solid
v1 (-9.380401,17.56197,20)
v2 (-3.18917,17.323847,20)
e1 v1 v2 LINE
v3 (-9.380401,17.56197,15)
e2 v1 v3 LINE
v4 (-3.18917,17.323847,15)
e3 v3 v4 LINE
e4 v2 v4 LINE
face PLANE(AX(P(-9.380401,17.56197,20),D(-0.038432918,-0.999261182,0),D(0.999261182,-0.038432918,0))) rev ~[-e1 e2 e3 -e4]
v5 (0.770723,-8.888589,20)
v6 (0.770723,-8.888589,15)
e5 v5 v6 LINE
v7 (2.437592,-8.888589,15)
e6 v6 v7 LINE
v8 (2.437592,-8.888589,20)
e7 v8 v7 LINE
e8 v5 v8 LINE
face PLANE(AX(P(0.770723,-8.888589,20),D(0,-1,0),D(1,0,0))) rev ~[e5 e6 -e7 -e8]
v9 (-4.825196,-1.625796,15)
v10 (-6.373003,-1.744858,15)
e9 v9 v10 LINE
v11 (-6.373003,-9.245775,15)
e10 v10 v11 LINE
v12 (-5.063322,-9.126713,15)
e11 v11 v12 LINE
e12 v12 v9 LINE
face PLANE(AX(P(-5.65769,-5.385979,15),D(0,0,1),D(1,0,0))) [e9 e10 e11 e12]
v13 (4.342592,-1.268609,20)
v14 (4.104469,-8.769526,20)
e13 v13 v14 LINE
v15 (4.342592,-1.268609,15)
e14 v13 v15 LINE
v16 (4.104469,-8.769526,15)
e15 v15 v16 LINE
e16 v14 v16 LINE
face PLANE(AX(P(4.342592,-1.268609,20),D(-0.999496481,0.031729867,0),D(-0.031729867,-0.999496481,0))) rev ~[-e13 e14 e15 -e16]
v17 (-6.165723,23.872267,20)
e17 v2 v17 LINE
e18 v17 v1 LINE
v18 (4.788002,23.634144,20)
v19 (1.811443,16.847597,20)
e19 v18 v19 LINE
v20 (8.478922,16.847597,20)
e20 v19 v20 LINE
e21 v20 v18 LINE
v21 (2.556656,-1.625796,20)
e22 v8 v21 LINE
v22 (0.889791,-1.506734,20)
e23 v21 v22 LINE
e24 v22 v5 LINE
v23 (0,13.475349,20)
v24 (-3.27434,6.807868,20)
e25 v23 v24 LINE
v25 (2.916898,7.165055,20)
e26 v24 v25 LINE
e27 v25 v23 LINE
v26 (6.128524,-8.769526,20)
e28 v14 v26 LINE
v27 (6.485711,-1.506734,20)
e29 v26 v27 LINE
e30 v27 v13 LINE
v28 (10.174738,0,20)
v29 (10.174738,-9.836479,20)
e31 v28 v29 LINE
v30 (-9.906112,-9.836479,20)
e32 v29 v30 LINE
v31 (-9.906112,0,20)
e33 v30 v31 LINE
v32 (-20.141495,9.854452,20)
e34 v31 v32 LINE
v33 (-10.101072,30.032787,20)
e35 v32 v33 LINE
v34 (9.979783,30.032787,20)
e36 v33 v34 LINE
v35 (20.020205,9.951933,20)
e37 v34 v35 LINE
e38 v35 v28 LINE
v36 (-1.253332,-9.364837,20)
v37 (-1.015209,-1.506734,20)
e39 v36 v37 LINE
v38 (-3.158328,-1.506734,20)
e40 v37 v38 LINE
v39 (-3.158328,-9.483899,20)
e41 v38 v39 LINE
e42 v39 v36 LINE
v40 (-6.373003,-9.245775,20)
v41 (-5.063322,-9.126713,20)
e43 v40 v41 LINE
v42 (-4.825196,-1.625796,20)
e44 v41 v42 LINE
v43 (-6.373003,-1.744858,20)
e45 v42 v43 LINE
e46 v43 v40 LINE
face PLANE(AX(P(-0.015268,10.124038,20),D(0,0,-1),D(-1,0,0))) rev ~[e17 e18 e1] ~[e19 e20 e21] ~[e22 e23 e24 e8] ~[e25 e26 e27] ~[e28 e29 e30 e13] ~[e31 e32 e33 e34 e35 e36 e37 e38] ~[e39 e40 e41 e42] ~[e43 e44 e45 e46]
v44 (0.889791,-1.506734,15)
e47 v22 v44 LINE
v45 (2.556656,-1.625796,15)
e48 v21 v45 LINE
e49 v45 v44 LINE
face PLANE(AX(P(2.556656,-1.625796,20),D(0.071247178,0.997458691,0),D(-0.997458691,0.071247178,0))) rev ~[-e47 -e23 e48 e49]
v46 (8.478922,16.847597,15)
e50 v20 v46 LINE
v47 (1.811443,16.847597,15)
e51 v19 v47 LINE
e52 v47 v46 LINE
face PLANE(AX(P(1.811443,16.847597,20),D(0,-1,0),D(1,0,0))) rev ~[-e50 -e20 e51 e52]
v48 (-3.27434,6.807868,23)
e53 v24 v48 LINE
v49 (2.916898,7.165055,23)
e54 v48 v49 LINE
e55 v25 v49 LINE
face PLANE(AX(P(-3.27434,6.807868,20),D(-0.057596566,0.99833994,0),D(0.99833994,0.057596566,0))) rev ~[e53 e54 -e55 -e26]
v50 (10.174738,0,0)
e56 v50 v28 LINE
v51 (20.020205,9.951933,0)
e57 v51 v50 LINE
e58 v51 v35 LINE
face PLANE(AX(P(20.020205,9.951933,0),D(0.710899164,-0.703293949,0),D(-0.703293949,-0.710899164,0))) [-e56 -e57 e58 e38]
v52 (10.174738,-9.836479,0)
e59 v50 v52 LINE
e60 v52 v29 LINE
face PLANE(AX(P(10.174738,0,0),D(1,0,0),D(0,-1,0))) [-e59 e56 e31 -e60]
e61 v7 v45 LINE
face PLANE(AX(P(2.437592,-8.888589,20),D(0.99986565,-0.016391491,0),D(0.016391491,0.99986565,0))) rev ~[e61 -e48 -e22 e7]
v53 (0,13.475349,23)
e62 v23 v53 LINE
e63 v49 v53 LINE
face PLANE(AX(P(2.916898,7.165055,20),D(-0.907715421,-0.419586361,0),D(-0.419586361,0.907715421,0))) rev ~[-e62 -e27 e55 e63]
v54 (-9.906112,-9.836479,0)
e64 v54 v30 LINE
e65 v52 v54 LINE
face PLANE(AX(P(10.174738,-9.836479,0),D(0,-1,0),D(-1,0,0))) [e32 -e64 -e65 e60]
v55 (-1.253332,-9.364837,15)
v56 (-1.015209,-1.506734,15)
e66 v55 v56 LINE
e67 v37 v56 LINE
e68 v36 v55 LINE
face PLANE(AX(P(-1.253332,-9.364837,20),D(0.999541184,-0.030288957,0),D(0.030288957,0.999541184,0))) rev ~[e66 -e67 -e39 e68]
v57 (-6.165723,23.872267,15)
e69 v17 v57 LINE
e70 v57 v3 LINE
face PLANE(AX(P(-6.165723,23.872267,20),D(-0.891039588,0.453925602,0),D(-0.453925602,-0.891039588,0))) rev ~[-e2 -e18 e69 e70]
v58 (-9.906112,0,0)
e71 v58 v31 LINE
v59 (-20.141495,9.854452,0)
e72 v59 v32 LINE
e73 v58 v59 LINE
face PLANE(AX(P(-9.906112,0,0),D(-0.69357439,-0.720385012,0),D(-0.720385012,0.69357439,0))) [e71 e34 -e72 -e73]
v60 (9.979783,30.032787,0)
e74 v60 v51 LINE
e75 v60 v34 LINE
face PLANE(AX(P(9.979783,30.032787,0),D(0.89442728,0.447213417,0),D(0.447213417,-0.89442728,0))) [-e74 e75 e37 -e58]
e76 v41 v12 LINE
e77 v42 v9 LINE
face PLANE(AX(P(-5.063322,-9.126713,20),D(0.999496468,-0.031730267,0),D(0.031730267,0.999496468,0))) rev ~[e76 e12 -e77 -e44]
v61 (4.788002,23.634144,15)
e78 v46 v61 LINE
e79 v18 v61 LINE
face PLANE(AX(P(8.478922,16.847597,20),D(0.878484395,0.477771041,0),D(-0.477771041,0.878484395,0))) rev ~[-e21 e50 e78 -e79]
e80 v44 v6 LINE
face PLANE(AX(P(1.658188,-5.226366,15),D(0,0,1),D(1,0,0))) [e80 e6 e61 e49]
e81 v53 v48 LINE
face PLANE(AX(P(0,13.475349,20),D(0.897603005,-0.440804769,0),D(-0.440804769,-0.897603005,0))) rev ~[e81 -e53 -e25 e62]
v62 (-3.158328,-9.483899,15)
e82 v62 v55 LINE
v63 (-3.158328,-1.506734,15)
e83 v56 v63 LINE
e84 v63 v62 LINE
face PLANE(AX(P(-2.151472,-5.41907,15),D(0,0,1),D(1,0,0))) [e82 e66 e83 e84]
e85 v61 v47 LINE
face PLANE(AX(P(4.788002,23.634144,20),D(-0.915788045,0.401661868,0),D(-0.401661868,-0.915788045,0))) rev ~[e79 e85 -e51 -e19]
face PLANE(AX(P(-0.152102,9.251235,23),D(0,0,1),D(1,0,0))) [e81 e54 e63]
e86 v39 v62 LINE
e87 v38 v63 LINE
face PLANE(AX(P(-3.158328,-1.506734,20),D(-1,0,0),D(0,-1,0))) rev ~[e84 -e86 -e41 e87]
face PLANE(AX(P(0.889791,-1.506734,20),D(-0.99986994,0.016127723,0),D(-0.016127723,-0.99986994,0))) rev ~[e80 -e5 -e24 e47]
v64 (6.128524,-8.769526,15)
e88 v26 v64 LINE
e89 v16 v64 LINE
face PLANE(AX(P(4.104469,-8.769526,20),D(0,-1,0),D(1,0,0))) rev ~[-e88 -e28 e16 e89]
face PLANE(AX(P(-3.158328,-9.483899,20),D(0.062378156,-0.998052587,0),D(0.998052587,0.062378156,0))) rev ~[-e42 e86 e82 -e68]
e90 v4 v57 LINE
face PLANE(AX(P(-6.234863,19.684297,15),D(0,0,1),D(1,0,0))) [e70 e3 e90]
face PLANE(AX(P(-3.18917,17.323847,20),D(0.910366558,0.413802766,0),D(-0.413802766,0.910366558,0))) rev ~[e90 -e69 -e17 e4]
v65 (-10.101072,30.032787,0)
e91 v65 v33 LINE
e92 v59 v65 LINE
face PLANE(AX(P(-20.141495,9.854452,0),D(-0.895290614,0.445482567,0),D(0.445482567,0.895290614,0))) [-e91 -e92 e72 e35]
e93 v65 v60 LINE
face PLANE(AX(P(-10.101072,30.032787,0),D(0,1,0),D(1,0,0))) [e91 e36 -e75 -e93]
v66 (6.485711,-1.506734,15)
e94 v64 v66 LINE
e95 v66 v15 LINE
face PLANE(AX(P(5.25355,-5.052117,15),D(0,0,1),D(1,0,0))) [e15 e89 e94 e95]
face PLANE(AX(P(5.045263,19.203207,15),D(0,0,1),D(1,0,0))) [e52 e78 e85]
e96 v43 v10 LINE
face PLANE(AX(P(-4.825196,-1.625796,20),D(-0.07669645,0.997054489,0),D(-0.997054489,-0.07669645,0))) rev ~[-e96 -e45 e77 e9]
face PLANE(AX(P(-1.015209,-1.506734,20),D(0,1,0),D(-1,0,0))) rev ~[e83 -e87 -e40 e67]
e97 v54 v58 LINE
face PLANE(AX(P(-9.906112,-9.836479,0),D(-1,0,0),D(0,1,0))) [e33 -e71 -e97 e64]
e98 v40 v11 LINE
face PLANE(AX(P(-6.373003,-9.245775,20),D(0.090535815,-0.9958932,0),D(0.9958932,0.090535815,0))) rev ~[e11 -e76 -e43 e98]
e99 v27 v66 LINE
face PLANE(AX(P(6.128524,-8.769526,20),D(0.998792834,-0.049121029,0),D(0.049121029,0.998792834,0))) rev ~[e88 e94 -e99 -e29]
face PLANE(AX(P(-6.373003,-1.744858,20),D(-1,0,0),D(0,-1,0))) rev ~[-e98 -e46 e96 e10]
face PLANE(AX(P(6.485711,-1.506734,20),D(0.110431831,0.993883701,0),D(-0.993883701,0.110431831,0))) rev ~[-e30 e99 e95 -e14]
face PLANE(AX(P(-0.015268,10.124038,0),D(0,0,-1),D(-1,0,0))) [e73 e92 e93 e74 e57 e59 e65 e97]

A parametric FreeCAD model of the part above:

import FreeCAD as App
import Part
import Sketcher


def add_polygon(sketch, points):
    """Adds a closed chain of lines whose ends are joined by coincident constraints."""
    first, n = sketch.GeometryCount, len(points)
    for a, b in zip(points, points[1:] + points[:1]):
        sketch.addGeometry(Part.LineSegment(App.Vector(*a, 0), App.Vector(*b, 0)), False)
    for i in range(n):
        sketch.addConstraint(Sketcher.Constraint("Coincident", first + i, 2, first + (i + 1) % n, 1))

doc = App.newDocument("Part")
params = doc.addObject("Spreadsheet::Sheet", "Params")
for row, (alias, value) in enumerate([
    ("pad1_length", "20 mm"),
    ("pocket1_length", "5 mm"),
    ("pocket2_length", "5 mm"),
    ("pad2_length", "3 mm"),
], start=1):
    params.set(f"A{row}", alias)
    params.set(f"B{row}", "=" + value)
    params.setAlias(f"B{row}", alias)

body = doc.addObject("PartDesign::Body", "Body")

sketch1 = body.newObject("Sketcher::SketchObject", "Sketch")
sketch1.AttachmentSupport = (doc.getObject("XY_Plane"), [""])
sketch1.MapMode = "FlatFace"
add_polygon(sketch1, [(10, 30), (-10, 30), (-20, 10), (-10, 0), (-10, -10), (10, -10), (10, 0), (20, 10)])
sketch1.addConstraint([
    Sketcher.Constraint("Horizontal", 0),
    Sketcher.Constraint("Vertical", 3),
    Sketcher.Constraint("Horizontal", 4),
    Sketcher.Constraint("Vertical", 5),
    Sketcher.Constraint("PointOnObject", 2, 2, -1),
    Sketcher.Constraint("PointOnObject", 5, 2, -1),
    Sketcher.Constraint("DistanceX", 4, 1, 4, 2, 20.08085),
    Sketcher.Constraint("DistanceY", 3, 2, 3, 1, 9.836479),
    Sketcher.Constraint("Distance", 6, 13.999078),
    Sketcher.Constraint("DistanceX", 0, 2, 0, 1, 20.080855),
    Sketcher.Constraint("DistanceX", 0, 2, 2, 2, 0.19496),
    Sketcher.Constraint("DistanceY", 3, 2, 1, 2, 19.690931),
    Sketcher.Constraint("Distance", 1, 22.538307),
    Sketcher.Constraint("Distance", 2, 14.208212),
    Sketcher.Constraint("Distance", 7, 22.451075),
    Sketcher.Constraint("DistanceX", 0, 2, -1, 1, 10.101072),
])
pad1 = body.newObject("PartDesign::Pad", "Pad")
pad1.Profile = sketch1
pad1.setExpression("Length", "Params.pad1_length")

sketch2 = body.newObject("Sketcher::SketchObject", "Sketch001")
sketch2.AttachmentSupport = (doc.getObject("XY_Plane"), [""])
sketch2.MapMode = "FlatFace"
sketch2.AttachmentOffset = App.Placement(App.Vector(0, 0, 20), App.Rotation())
add_polygon(sketch2, [(-6.373003, -1.744858), (-6.373003, -9.245775), (-5.063322, -9.126713), (-4.825196, -1.625796)])
add_polygon(sketch2, [(-3.158328, -1.506734), (-3.158328, -9.483899), (-1.253332, -9.364837), (-1.015209, -1.506734)])
add_polygon(sketch2, [(0.889791, -1.506734), (0.770723, -8.888589), (2.437592, -8.888589), (2.556656, -1.625796)])
add_polygon(sketch2, [(4.342592, -1.268609), (4.104469, -8.769526), (6.128524, -8.769526), (6.485711, -1.506734)])
sketch2.addConstraint([
    Sketcher.Constraint("Vertical", 0),
    Sketcher.Constraint("Vertical", 4),
    Sketcher.Constraint("Horizontal", 7),
    Sketcher.Constraint("Horizontal", 9),
    Sketcher.Constraint("Horizontal", 13),
    Sketcher.Constraint("DistanceX", 6, 2, 11, 2, 1.905),
    Sketcher.Constraint("DistanceX", 7, 2, 7, 1, 2.143119),
    Sketcher.Constraint("DistanceX", 9, 1, 9, 2, 1.666869),
    Sketcher.Constraint("DistanceY", 4, 2, -1, 1, 9.483899),
    Sketcher.Constraint("DistanceX", 6, 2, 9, 2, 3.452801),
    Sketcher.Constraint("DistanceX", 5, 2, 12, 2, 5.357801),
    Sketcher.Constraint("DistanceX", 8, 2, 13, 2, 5.357801),
    Sketcher.Constraint("DistanceX", 11, 2, 15, 2, 3.452801),
    Sketcher.Constraint("Distance", 1, 1.315082),
    Sketcher.Constraint("Distance", 3, 1.55238),
    Sketcher.Constraint("Distance", 6, 7.86171),
    Sketcher.Constraint("Distance", 10, 7.263769),
    Sketcher.Constraint("Distance", 11, 1.671112),
    Sketcher.Constraint("Distance", 14, 7.27157),
    Sketcher.Constraint("DistanceX", 13, 1, 13, 2, 2.024055),
    Sketcher.Constraint("DistanceY", 0, 2, 0, 1, 7.500917),
    Sketcher.Constraint("DistanceY", 4, 2, 4, 1, 7.977165),
    Sketcher.Constraint("DistanceX", 4, 2, -1, 1, 3.158328),
    Sketcher.Constraint("DistanceY", 8, 2, -1, 1, 8.888589),
    Sketcher.Constraint("DistanceX", -1, 1, 14, 2, 6.485711),
    Sketcher.Constraint("DistanceY", 15, 2, -1, 1, 1.268609),
    Sketcher.Constraint("DistanceX", 0, 2, 1, 2, 1.309681),
    Sketcher.Constraint("DistanceY", 0, 2, 2, 2, 7.619979),
    Sketcher.Constraint("DistanceY", 4, 2, 3, 2, 7.739041),
    Sketcher.Constraint("DistanceX", 1, 2, 5, 2, 3.80999),
    Sketcher.Constraint("DistanceY", 5, 2, 12, 2, 0.595311),
    Sketcher.Constraint("Distance", 8, 7.382815),
])
pocket1 = body.newObject("PartDesign::Pocket", "Pocket")
pocket1.Profile = sketch2
pocket1.setExpression("Length", "Params.pocket1_length")

sketch3 = body.newObject("Sketcher::SketchObject", "Sketch002")
sketch3.AttachmentSupport = (doc.getObject("XY_Plane"), [""])
sketch3.MapMode = "FlatFace"
sketch3.AttachmentOffset = App.Placement(App.Vector(0, 0, 20), App.Rotation())
add_polygon(sketch3, [(-6, 24), (-9, 18), (-3, 17)])
add_polygon(sketch3, [(5, 24), (2, 17), (8, 17)])
sketch3.addConstraint([
    Sketcher.Constraint("Horizontal", 4),
    Sketcher.Constraint("DistanceX", -1, 1, 5, 2, 4.788002),
    Sketcher.Constraint("DistanceX", 4, 1, 4, 2, 6.667479),
    Sketcher.Constraint("DistanceX", 0, 2, -1, 1, 9.380401),
    Sketcher.Constraint("Distance", 0, 7.081949),
    Sketcher.Constraint("Distance", 1, 6.195809),
    Sketcher.Constraint("Distance", 2, 7.193168),
    Sketcher.Constraint("Distance", 3, 7.410609),
    Sketcher.Constraint("Distance", 5, 7.72529),
    Sketcher.Constraint("DistanceY", -1, 1, 0, 2, 17.56197),
    Sketcher.Constraint("DistanceX", 1, 2, -1, 1, 3.18917),
    Sketcher.Constraint("DistanceY", 3, 2, 1, 2, 0.47625),
])
pocket2 = body.newObject("PartDesign::Pocket", "Pocket001")
pocket2.Profile = sketch3
pocket2.setExpression("Length", "Params.pocket2_length")

sketch4 = body.newObject("Sketcher::SketchObject", "Sketch003")
sketch4.AttachmentSupport = (doc.getObject("XY_Plane"), [""])
sketch4.MapMode = "FlatFace"
sketch4.AttachmentOffset = App.Placement(App.Vector(0, 0, 20), App.Rotation())
add_polygon(sketch4, [(0, 13), (-3, 7), (3, 7)])
sketch4.addConstraint([
    Sketcher.Constraint("PointOnObject", 2, 2, -2),
    Sketcher.Constraint("DistanceX", -1, 1, 1, 2, 2.916898),
    Sketcher.Constraint("Distance", 2, 6.951842),
    Sketcher.Constraint("DistanceX", 0, 2, -1, 1, 3.27434),
    Sketcher.Constraint("DistanceY", -1, 1, 2, 2, 13.475349),
    Sketcher.Constraint("DistanceY", 0, 2, 2, 2, 6.667481),
])
pad2 = body.newObject("PartDesign::Pad", "Pad001")
pad2.Profile = sketch4
pad2.setExpression("Length", "Params.pad2_length")

doc.recompute()
